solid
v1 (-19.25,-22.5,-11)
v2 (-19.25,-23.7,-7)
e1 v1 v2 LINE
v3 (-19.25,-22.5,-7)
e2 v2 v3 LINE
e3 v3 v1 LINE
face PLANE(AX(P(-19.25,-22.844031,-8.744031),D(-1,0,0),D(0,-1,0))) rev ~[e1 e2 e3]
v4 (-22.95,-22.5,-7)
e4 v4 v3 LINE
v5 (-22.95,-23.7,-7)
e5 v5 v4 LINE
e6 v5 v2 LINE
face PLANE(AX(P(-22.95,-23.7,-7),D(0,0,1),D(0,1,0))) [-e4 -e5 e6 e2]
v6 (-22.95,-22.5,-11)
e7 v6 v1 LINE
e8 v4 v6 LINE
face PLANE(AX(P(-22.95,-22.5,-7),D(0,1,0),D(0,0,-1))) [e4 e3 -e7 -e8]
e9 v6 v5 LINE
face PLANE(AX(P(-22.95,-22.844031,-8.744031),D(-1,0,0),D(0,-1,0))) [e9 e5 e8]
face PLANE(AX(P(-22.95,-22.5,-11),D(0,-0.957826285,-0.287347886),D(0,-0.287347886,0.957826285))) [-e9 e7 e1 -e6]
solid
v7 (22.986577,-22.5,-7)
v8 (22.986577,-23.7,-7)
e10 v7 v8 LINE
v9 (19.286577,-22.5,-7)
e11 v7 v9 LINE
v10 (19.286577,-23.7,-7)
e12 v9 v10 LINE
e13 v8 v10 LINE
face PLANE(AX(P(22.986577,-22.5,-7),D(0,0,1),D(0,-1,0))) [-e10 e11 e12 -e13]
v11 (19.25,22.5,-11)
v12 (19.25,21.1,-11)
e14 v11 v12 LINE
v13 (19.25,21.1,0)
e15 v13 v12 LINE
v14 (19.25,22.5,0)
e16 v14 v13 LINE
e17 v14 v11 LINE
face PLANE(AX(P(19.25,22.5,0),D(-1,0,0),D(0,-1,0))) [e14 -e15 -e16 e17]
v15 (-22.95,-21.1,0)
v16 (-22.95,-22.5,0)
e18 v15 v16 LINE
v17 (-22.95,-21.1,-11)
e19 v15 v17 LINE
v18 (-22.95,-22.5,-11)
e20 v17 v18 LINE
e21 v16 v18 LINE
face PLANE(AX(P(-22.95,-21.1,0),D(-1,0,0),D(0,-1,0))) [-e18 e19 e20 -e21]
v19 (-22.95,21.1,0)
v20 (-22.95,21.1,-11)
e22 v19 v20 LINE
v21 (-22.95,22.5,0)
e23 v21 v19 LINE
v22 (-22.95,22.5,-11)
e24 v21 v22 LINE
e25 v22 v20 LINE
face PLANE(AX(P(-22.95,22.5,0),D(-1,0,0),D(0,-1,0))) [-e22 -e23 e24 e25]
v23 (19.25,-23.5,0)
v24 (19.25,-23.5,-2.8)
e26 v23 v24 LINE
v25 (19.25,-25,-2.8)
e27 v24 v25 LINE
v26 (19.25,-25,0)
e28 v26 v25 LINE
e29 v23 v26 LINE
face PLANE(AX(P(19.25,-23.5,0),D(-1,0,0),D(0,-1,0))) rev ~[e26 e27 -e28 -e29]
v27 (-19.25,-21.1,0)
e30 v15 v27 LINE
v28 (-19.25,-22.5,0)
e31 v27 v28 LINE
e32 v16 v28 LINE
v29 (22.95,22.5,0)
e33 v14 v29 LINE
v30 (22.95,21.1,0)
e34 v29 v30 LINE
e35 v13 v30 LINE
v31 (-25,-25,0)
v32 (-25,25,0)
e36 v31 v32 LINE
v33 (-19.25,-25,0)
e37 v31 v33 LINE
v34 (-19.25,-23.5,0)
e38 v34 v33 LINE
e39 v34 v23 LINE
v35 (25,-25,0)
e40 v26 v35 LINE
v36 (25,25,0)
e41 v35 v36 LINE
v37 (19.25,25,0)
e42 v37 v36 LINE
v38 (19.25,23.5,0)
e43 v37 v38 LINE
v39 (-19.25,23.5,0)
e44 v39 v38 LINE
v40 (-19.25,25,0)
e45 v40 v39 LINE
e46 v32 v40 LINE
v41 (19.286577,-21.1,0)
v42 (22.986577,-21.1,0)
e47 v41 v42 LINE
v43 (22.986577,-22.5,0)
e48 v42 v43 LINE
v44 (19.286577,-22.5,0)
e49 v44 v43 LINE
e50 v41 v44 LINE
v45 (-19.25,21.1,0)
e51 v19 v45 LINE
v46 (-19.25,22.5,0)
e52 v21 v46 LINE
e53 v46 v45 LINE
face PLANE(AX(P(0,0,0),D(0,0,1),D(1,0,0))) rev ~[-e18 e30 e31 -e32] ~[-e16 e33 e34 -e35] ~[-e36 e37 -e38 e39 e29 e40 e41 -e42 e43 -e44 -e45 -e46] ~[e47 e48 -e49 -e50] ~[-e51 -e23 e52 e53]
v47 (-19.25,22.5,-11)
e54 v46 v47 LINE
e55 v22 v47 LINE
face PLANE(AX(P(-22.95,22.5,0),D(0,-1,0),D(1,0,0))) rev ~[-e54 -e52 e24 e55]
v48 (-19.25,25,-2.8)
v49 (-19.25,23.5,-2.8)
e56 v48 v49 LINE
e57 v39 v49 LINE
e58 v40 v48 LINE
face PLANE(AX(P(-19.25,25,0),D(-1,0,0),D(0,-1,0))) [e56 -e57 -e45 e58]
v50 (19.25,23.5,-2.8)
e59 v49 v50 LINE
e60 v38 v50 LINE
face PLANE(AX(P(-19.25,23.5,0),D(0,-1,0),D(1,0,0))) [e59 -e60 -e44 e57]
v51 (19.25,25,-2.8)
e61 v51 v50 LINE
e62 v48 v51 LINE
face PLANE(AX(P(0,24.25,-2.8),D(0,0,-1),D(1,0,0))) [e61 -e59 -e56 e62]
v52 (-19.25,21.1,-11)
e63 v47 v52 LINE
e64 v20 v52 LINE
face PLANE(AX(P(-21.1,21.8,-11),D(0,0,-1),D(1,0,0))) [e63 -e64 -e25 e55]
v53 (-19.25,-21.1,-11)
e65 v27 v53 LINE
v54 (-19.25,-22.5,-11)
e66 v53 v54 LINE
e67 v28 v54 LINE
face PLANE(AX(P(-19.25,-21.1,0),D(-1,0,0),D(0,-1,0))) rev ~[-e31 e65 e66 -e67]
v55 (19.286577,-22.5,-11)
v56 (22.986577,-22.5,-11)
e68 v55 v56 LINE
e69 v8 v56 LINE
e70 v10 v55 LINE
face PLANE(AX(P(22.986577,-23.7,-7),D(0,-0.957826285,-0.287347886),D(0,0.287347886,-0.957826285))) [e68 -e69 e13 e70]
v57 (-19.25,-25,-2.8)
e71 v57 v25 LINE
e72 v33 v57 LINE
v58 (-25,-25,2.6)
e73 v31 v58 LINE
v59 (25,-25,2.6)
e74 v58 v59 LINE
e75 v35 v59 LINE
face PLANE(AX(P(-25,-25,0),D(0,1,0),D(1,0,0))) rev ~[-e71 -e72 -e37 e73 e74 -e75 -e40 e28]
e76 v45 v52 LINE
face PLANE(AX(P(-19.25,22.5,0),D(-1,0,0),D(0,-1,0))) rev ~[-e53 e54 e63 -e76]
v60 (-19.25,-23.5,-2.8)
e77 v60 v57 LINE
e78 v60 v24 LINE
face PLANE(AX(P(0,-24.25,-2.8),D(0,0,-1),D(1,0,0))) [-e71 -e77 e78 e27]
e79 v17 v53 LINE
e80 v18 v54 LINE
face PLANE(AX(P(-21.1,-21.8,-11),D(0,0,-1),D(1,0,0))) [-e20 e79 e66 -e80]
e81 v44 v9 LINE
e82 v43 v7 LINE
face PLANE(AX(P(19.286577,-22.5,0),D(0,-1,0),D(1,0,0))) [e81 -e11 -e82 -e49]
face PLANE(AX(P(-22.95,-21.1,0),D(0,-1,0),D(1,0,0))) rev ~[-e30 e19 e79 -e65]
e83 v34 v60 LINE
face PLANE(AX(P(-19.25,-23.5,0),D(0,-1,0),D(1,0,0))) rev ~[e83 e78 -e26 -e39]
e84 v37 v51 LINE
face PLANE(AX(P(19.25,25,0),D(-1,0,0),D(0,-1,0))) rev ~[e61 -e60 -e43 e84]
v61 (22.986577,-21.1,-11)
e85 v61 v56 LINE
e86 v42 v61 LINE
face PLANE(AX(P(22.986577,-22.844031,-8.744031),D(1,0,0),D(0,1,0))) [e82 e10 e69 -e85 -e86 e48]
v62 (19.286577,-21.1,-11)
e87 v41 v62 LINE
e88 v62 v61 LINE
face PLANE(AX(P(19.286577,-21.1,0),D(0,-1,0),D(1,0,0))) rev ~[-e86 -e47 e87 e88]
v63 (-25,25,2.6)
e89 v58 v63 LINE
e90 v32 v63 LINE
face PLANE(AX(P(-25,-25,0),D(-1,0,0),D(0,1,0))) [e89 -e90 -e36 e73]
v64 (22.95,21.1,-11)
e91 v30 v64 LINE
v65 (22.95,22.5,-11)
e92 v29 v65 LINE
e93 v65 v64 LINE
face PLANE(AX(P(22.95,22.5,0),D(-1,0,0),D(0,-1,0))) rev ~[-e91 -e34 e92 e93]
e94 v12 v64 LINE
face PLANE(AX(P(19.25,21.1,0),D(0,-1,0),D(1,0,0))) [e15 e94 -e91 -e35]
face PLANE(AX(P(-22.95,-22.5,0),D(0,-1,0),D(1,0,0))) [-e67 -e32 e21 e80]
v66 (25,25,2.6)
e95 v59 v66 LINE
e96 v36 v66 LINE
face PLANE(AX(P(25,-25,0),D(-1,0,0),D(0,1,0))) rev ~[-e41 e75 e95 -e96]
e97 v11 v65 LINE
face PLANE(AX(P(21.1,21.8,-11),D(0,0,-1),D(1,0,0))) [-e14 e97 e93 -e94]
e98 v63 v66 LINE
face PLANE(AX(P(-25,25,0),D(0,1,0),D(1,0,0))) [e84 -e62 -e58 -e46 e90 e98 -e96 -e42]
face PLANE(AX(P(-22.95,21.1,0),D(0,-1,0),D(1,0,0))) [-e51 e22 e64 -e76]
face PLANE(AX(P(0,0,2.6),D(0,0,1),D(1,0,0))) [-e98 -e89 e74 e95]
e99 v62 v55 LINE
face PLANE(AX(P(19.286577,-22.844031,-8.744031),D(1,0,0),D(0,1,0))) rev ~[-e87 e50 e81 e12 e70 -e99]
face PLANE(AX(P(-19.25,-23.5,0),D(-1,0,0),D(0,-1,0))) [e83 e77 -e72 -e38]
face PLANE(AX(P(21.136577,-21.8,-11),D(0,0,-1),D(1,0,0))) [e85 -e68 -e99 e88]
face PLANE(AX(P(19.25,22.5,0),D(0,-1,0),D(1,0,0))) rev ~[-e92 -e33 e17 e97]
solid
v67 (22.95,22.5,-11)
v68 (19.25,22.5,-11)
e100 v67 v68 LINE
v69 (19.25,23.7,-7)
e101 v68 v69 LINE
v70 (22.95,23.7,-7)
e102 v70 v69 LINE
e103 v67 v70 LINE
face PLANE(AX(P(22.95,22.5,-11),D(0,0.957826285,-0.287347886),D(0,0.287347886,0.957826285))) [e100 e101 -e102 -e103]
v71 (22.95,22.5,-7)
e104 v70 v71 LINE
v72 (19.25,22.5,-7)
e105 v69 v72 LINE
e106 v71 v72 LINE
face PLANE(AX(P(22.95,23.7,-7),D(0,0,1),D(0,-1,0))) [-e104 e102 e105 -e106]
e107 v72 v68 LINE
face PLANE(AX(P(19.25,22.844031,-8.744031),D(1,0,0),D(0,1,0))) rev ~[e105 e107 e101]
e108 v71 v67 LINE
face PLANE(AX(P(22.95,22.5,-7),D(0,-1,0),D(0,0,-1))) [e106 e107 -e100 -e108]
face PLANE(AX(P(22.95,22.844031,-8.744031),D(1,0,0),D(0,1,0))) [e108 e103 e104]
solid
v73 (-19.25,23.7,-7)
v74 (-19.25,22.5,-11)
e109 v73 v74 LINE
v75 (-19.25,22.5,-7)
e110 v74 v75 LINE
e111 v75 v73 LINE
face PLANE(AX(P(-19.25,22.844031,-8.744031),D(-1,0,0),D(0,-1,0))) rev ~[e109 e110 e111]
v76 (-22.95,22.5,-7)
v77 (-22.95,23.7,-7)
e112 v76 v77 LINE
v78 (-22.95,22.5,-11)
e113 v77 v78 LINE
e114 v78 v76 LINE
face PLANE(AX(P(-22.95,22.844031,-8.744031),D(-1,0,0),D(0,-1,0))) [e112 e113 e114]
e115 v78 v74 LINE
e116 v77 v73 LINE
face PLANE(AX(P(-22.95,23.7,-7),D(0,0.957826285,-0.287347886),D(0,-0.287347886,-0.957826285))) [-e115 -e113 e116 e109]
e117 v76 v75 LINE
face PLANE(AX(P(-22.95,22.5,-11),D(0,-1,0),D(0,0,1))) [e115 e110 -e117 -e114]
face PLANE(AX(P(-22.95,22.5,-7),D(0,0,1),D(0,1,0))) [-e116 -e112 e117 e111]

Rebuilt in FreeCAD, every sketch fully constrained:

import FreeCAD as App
import Part
import Sketcher
Q = App.Units.Quantity

doc = App.newDocument("Part")
params = doc.addObject("Spreadsheet::Sheet", "Params")
for row, (alias, value) in enumerate([
    ("sketch1_width", "50 mm"),
    ("pad1_length", "2.6 mm"),
    ("sketch2_width", "38.5 mm"),
    ("sketch2_height", "1.5 mm"),
    ("pad2_length", "2.8 mm"),
    ("sketch3_width", "3.7 mm"),
    ("sketch3_height", "1.4 mm"),
    ("pad3_length", "11 mm"),
    ("sketch4_height", "4 mm"),
    ("sketch4_width", "1.2 mm"),
    ("pad4_length", "3.7 mm"),
    ("sketch5_height", "4 mm"),
    ("sketch5_width", "1.2 mm"),
    ("pad5_length", "3.7 mm"),
    ("sketch6_height", "4 mm"),
    ("sketch6_width", "1.2 mm"),
    ("pad6_length", "3.7 mm"),
    ("sketch7_height", "4 mm"),
    ("sketch7_width", "1.2 mm"),
    ("pad7_length", "3.7 mm"),
], start=1):
    params.set(f"A{row}", alias)
    params.set(f"B{row}", "=" + value)
    params.setAlias(f"B{row}", alias)

body = doc.addObject("PartDesign::Body", "Body")

sketch1 = body.newObject("Sketcher::SketchObject", "Sketch")
sketch1.AttachmentSupport = (doc.getObject("XY_Plane"), [""])
sketch1.MapMode = "FlatFace"
sketch1.addGeometry([
    Part.LineSegment(App.Vector(-25, 25, 0), App.Vector(-25, -25, 0)),
    Part.LineSegment(App.Vector(-25, -25, 0), App.Vector(25, -25, 0)),
    Part.LineSegment(App.Vector(25, -25, 0), App.Vector(25, 25, 0)),
    Part.LineSegment(App.Vector(25, 25, 0), App.Vector(-25, 25, 0)),
], False)
sketch1.addConstraint([
    Sketcher.Constraint("Coincident", 0, 2, 1, 1),
    Sketcher.Constraint("Coincident", 1, 2, 2, 1),
    Sketcher.Constraint("Coincident", 2, 2, 3, 1),
    Sketcher.Constraint("Coincident", 3, 2, 0, 1),
    Sketcher.Constraint("Vertical", 0),
    Sketcher.Constraint("Horizontal", 1),
    Sketcher.Constraint("Vertical", 2),
    Sketcher.Constraint("Horizontal", 3),
    Sketcher.Constraint("Symmetric", 0, 2, 2, 2, -1, 1),
    Sketcher.Constraint("Equal", 3, 0),
    Sketcher.Constraint("DistanceX", 1, 1, 1, 2, Q("50 mm")),
])
sketch1.setExpression("Constraints[10]", "Params.sketch1_width")
pad1 = body.newObject("PartDesign::Pad", "Pad")
pad1.Profile = sketch1
pad1.setExpression("Length", "Params.pad1_length")

sketch2 = body.newObject("Sketcher::SketchObject", "Sketch001")
sketch2.AttachmentSupport = (doc.getObject("XY_Plane"), [""])
sketch2.MapMode = "FlatFace"
sketch2.addGeometry([
    Part.LineSegment(App.Vector(-19.2, -25, 0), App.Vector(-19.2, -23.5, 0)),
    Part.LineSegment(App.Vector(-19.2, -23.5, 0), App.Vector(19.2, -23.5, 0)),
    Part.LineSegment(App.Vector(19.2, -23.5, 0), App.Vector(19.2, -25, 0)),
    Part.LineSegment(App.Vector(19.2, -25, 0), App.Vector(-19.2, -25, 0)),
    Part.LineSegment(App.Vector(-19.2, 23.5, 0), App.Vector(-19.2, 25, 0)),
    Part.LineSegment(App.Vector(-19.2, 25, 0), App.Vector(19.2, 25, 0)),
    Part.LineSegment(App.Vector(19.2, 25, 0), App.Vector(19.2, 23.5, 0)),
    Part.LineSegment(App.Vector(19.2, 23.5, 0), App.Vector(-19.2, 23.5, 0)),
], False)
sketch2.addConstraint([
    Sketcher.Constraint("Coincident", 0, 2, 1, 1),
    Sketcher.Constraint("Coincident", 1, 2, 2, 1),
    Sketcher.Constraint("Coincident", 2, 2, 3, 1),
    Sketcher.Constraint("Coincident", 3, 2, 0, 1),
    Sketcher.Constraint("Coincident", 4, 2, 5, 1),
    Sketcher.Constraint("Coincident", 5, 2, 6, 1),
    Sketcher.Constraint("Coincident", 6, 2, 7, 1),
    Sketcher.Constraint("Coincident", 7, 2, 4, 1),
    Sketcher.Constraint("Vertical", 0),
    Sketcher.Constraint("Horizontal", 1),
    Sketcher.Constraint("Vertical", 2),
    Sketcher.Constraint("Horizontal", 3),
    Sketcher.Constraint("Vertical", 4),
    Sketcher.Constraint("Horizontal", 5),
    Sketcher.Constraint("Vertical", 6),
    Sketcher.Constraint("Horizontal", 7),
    Sketcher.Constraint("Symmetric", 2, 2, 4, 2, -1, 1),
    Sketcher.Constraint("Symmetric", 0, 2, 6, 2, -1, 1),
    Sketcher.Constraint("Vertical", 3, 2, 4, 2),
    Sketcher.Constraint("DistanceX", 1, 1, 1, 2, Q("38.5 mm")),
    Sketcher.Constraint("DistanceY", 0, 1, 0, 2, Q("1.5 mm")),
    Sketcher.Constraint("DistanceY", 2, 2, -1, 1, Q("25 mm")),
])
sketch2.setExpression("Constraints[19]", "Params.sketch2_width")
sketch2.setExpression("Constraints[20]", "Params.sketch2_height")
pad2 = body.newObject("PartDesign::Pad", "Pad001")
pad2.Profile = sketch2
pad2.setExpression("Length", "Params.pad2_length")
pad2.Reversed = True

sketch3 = body.newObject("Sketcher::SketchObject", "Sketch002")
sketch3.AttachmentSupport = (doc.getObject("XY_Plane"), [""])
sketch3.MapMode = "FlatFace"
sketch3.addGeometry([
    Part.LineSegment(App.Vector(19.3, -22.5, 0), App.Vector(19.3, -21.1, 0)),
    Part.LineSegment(App.Vector(19.3, -21.1, 0), App.Vector(23, -21.1, 0)),
    Part.LineSegment(App.Vector(23, -21.1, 0), App.Vector(23, -22.5, 0)),
    Part.LineSegment(App.Vector(23, -22.5, 0), App.Vector(19.3, -22.5, 0)),
    Part.LineSegment(App.Vector(-22.9, -22.5, 0), App.Vector(-22.9, -21.1, 0)),
    Part.LineSegment(App.Vector(-22.9, -21.1, 0), App.Vector(-19.2, -21.1, 0)),
    Part.LineSegment(App.Vector(-19.2, -21.1, 0), App.Vector(-19.2, -22.5, 0)),
    Part.LineSegment(App.Vector(-19.2, -22.5, 0), App.Vector(-22.9, -22.5, 0)),
    Part.LineSegment(App.Vector(-22.9, 21.1, 0), App.Vector(-22.9, 22.5, 0)),
    Part.LineSegment(App.Vector(-22.9, 22.5, 0), App.Vector(-19.2, 22.5, 0)),
    Part.LineSegment(App.Vector(-19.2, 22.5, 0), App.Vector(-19.2, 21.1, 0)),
    Part.LineSegment(App.Vector(-19.2, 21.1, 0), App.Vector(-22.9, 21.1, 0)),
    Part.LineSegment(App.Vector(19.2, 21.1, 0), App.Vector(19.2, 22.5, 0)),
    Part.LineSegment(App.Vector(19.2, 22.5, 0), App.Vector(22.9, 22.5, 0)),
    Part.LineSegment(App.Vector(22.9, 22.5, 0), App.Vector(22.9, 21.1, 0)),
    Part.LineSegment(App.Vector(22.9, 21.1, 0), App.Vector(19.2, 21.1, 0)),
], False)
sketch3.addConstraint([
    Sketcher.Constraint("Coincident", 0, 2, 1, 1),
    Sketcher.Constraint("Coincident", 1, 2, 2, 1),
    Sketcher.Constraint("Coincident", 2, 2, 3, 1),
    Sketcher.Constraint("Coincident", 3, 2, 0, 1),
    Sketcher.Constraint("Coincident", 4, 2, 5, 1),
    Sketcher.Constraint("Coincident", 5, 2, 6, 1),
    Sketcher.Constraint("Coincident", 6, 2, 7, 1),
    Sketcher.Constraint("Coincident", 7, 2, 4, 1),
    Sketcher.Constraint("Coincident", 8, 2, 9, 1),
    Sketcher.Constraint("Coincident", 9, 2, 10, 1),
    Sketcher.Constraint("Coincident", 10, 2, 11, 1),
    Sketcher.Constraint("Coincident", 11, 2, 8, 1),
    Sketcher.Constraint("Coincident", 12, 2, 13, 1),
    Sketcher.Constraint("Coincident", 13, 2, 14, 1),
    Sketcher.Constraint("Coincident", 14, 2, 15, 1),
    Sketcher.Constraint("Coincident", 15, 2, 12, 1),
    Sketcher.Constraint("Vertical", 0),
    Sketcher.Constraint("Horizontal", 1),
    Sketcher.Constraint("Vertical", 2),
    Sketcher.Constraint("Horizontal", 3),
    Sketcher.Constraint("Vertical", 4),
    Sketcher.Constraint("Horizontal", 5),
    Sketcher.Constraint("Vertical", 6),
    Sketcher.Constraint("Horizontal", 7),
    Sketcher.Constraint("Vertical", 8),
    Sketcher.Constraint("Horizontal", 9),
    Sketcher.Constraint("Vertical", 10),
    Sketcher.Constraint("Horizontal", 11),
    Sketcher.Constraint("Vertical", 12),
    Sketcher.Constraint("Horizontal", 13),
    Sketcher.Constraint("Vertical", 14),
    Sketcher.Constraint("Horizontal", 15),
    Sketcher.Constraint("Symmetric", 6, 2, 12, 2, -1, 1),
    Sketcher.Constraint("Symmetric", 4, 2, 14, 2, -1, 1),
    Sketcher.Constraint("Symmetric", 9, 2, 12, 2, -2),
    Sketcher.Constraint("Symmetric", 11, 2, 14, 2, -2),
    Sketcher.Constraint("Horizontal", 1, 2, 4, 2),
    Sketcher.Constraint("Horizontal", 3, 2, 6, 2),
    Sketcher.Constraint("Equal", 3, 5),
    Sketcher.Constraint("DistanceX", 1, 1, 1, 2, Q("3.7 mm")),
    Sketcher.Constraint("DistanceY", 0, 1, 0, 2, Q("1.4 mm")),
    Sketcher.Constraint("DistanceY", 7, 2, 8, 2, Q("45 mm")),
    Sketcher.Constraint("DistanceX", 9, 2, 12, 2, Q("38.5 mm")),
    Sketcher.Constraint("DistanceX", -1, 1, 0, 2, Q("19.286577 mm")),
])
sketch3.setExpression("Constraints[39]", "Params.sketch3_width")
sketch3.setExpression("Constraints[40]", "Params.sketch3_height")
pad3 = body.newObject("PartDesign::Pad", "Pad002")
pad3.Profile = sketch3
pad3.setExpression("Length", "Params.pad3_length")
pad3.Reversed = True

sketch4 = body.newObject("Sketcher::SketchObject", "Sketch003")
sketch4.AttachmentSupport = (doc.getObject("YZ_Plane"), [""])
sketch4.MapMode = "FlatFace"
sketch4.AttachmentOffset = App.Placement(App.Vector(0, 0, 22.986577), App.Rotation())
sketch4.addGeometry([
    Part.LineSegment(App.Vector(-23.7, -7, 0), App.Vector(-22.5, -11, 0)),
    Part.LineSegment(App.Vector(-22.5, -11, 0), App.Vector(-22.5, -7, 0)),
    Part.LineSegment(App.Vector(-22.5, -7, 0), App.Vector(-23.7, -7, 0)),
], False)
sketch4.addConstraint([
    Sketcher.Constraint("Coincident", 0, 2, 1, 1),
    Sketcher.Constraint("Coincident", 1, 2, 2, 1),
    Sketcher.Constraint("Coincident", 2, 2, 0, 1),
    Sketcher.Constraint("Vertical", 1),
    Sketcher.Constraint("Horizontal", 2),
    Sketcher.Constraint("DistanceY", 1, 1, 1, 2, Q("4 mm")),
    Sketcher.Constraint("DistanceX", 2, 2, 2, 1, Q("1.2 mm")),
    Sketcher.Constraint("DistanceY", 0, 2, -1, 1, Q("11 mm")),
    Sketcher.Constraint("DistanceX", 0, 2, -1, 1, Q("22.5 mm")),
])
sketch4.setExpression("Constraints[5]", "Params.sketch4_height")
sketch4.setExpression("Constraints[6]", "Params.sketch4_width")
pad4 = body.newObject("PartDesign::Pad", "Pad003")
pad4.Profile = sketch4
pad4.setExpression("Length", "Params.pad4_length")
pad4.Reversed = True
body2 = doc.addObject("PartDesign::Body", "Body001")

sketch5 = body2.newObject("Sketcher::SketchObject", "Sketch004")
sketch5.AttachmentSupport = (doc.getObject("YZ_Plane001"), [""])
sketch5.MapMode = "FlatFace"
sketch5.AttachmentOffset = App.Placement(App.Vector(0, 0, -22.95), App.Rotation())
sketch5.addGeometry([
    Part.LineSegment(App.Vector(-22.5, -7, 0), App.Vector(-22.5, -11, 0)),
    Part.LineSegment(App.Vector(-22.5, -11, 0), App.Vector(-23.7, -7, 0)),
    Part.LineSegment(App.Vector(-23.7, -7, 0), App.Vector(-22.5, -7, 0)),
], False)
sketch5.addConstraint([
    Sketcher.Constraint("Coincident", 0, 2, 1, 1),
    Sketcher.Constraint("Coincident", 1, 2, 2, 1),
    Sketcher.Constraint("Coincident", 2, 2, 0, 1),
    Sketcher.Constraint("Vertical", 0),
    Sketcher.Constraint("Horizontal", 2),
    Sketcher.Constraint("DistanceY", 0, 2, 0, 1, Q("4 mm")),
    Sketcher.Constraint("DistanceX", 2, 1, 2, 2, Q("1.2 mm")),
    Sketcher.Constraint("DistanceY", 0, 2, -1, 1, Q("11 mm")),
    Sketcher.Constraint("DistanceX", 0, 2, -1, 1, Q("22.5 mm")),
])
sketch5.setExpression("Constraints[5]", "Params.sketch5_height")
sketch5.setExpression("Constraints[6]", "Params.sketch5_width")
pad5 = body2.newObject("PartDesign::Pad", "Pad004")
pad5.Profile = sketch5
pad5.setExpression("Length", "Params.pad5_length")
body3 = doc.addObject("PartDesign::Body", "Body002")

sketch6 = body3.newObject("Sketcher::SketchObject", "Sketch005")
sketch6.AttachmentSupport = (doc.getObject("YZ_Plane002"), [""])
sketch6.MapMode = "FlatFace"
sketch6.AttachmentOffset = App.Placement(App.Vector(0, 0, -22.95), App.Rotation())
sketch6.addGeometry([
    Part.LineSegment(App.Vector(23.7, -7, 0), App.Vector(22.5, -11, 0)),
    Part.LineSegment(App.Vector(22.5, -11, 0), App.Vector(22.5, -7, 0)),
    Part.LineSegment(App.Vector(22.5, -7, 0), App.Vector(23.7, -7, 0)),
], False)
sketch6.addConstraint([
    Sketcher.Constraint("Coincident", 0, 2, 1, 1),
    Sketcher.Constraint("Coincident", 1, 2, 2, 1),
    Sketcher.Constraint("Coincident", 2, 2, 0, 1),
    Sketcher.Constraint("Vertical", 1),
    Sketcher.Constraint("Horizontal", 2),
    Sketcher.Constraint("DistanceY", 1, 1, 1, 2, Q("4 mm")),
    Sketcher.Constraint("DistanceX", 2, 1, 2, 2, Q("1.2 mm")),
    Sketcher.Constraint("DistanceY", 0, 2, -1, 1, Q("11 mm")),
    Sketcher.Constraint("DistanceX", -1, 1, 0, 2, Q("22.5 mm")),
])
sketch6.setExpression("Constraints[5]", "Params.sketch6_height")
sketch6.setExpression("Constraints[6]", "Params.sketch6_width")
pad6 = body3.newObject("PartDesign::Pad", "Pad005")
pad6.Profile = sketch6
pad6.setExpression("Length", "Params.pad6_length")
body4 = doc.addObject("PartDesign::Body", "Body003")

sketch7 = body4.newObject("Sketcher::SketchObject", "Sketch006")
sketch7.AttachmentSupport = (doc.getObject("YZ_Plane003"), [""])
sketch7.MapMode = "FlatFace"
sketch7.AttachmentOffset = App.Placement(App.Vector(0, 0, 22.95), App.Rotation())
sketch7.addGeometry([
    Part.LineSegment(App.Vector(22.5, -7, 0), App.Vector(22.5, -11, 0)),
    Part.LineSegment(App.Vector(22.5, -11, 0), App.Vector(23.7, -7, 0)),
    Part.LineSegment(App.Vector(23.7, -7, 0), App.Vector(22.5, -7, 0)),
], False)
sketch7.addConstraint([
    Sketcher.Constraint("Coincident", 0, 2, 1, 1),
    Sketcher.Constraint("Coincident", 1, 2, 2, 1),
    Sketcher.Constraint("Coincident", 2, 2, 0, 1),
    Sketcher.Constraint("Vertical", 0),
    Sketcher.Constraint("Horizontal", 2),
    Sketcher.Constraint("DistanceY", 0, 2, 0, 1, Q("4 mm")),
    Sketcher.Constraint("DistanceX", 2, 2, 2, 1, Q("1.2 mm")),
    Sketcher.Constraint("DistanceY", 0, 2, -1, 1, Q("11 mm")),
    Sketcher.Constraint("DistanceX", -1, 1, 0, 2, Q("22.5 mm")),
])
sketch7.setExpression("Constraints[5]", "Params.sketch7_height")
sketch7.setExpression("Constraints[6]", "Params.sketch7_width")
pad7 = body4.newObject("PartDesign::Pad", "Pad006")
pad7.Profile = sketch7
pad7.setExpression("Length", "Params.pad7_length")
pad7.Reversed = True

doc.recompute()
